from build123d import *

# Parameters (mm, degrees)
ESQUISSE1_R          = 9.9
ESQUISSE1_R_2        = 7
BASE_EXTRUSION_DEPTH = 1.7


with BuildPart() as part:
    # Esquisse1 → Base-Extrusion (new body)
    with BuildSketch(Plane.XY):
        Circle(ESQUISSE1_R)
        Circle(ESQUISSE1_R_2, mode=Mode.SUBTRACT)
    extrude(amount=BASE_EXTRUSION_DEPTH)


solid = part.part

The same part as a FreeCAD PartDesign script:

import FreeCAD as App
import Part
import Sketcher
Q = App.Units.Quantity

doc = App.newDocument("Part")
body = doc.addObject("PartDesign::Body", "Body")

# Sketch on XY plane
sketch1 = doc.addObject("Sketcher::SketchObject", "Sketch")
body.addObject(sketch1)
sketch1.AttachmentSupport = (doc.XY_Plane, [""])
sketch1.MapMode = "FlatFace"
sketch1.addGeometry([
    Part.Circle(App.Vector(0, 0, 0), App.Vector(0, 0, 1), 10),
    Part.Circle(App.Vector(0, 0, 0), App.Vector(0, 0, 1), 7),
], False)
sketch1.addConstraint([
    Sketcher.Constraint("Coincident", 0, 3, -1, 1),
    Sketcher.Constraint("Coincident", 1, 3, -1, 1),
    Sketcher.Constraint("Diameter", 1, Q("14 mm")),
    Sketcher.Constraint("Diameter", 0, Q("19.8 mm")),
])
pad1 = doc.addObject("PartDesign::Pad", "Pad")
body.addObject(pad1)
pad1.Profile = sketch1
pad1.Length = 1.7

doc.recompute()
